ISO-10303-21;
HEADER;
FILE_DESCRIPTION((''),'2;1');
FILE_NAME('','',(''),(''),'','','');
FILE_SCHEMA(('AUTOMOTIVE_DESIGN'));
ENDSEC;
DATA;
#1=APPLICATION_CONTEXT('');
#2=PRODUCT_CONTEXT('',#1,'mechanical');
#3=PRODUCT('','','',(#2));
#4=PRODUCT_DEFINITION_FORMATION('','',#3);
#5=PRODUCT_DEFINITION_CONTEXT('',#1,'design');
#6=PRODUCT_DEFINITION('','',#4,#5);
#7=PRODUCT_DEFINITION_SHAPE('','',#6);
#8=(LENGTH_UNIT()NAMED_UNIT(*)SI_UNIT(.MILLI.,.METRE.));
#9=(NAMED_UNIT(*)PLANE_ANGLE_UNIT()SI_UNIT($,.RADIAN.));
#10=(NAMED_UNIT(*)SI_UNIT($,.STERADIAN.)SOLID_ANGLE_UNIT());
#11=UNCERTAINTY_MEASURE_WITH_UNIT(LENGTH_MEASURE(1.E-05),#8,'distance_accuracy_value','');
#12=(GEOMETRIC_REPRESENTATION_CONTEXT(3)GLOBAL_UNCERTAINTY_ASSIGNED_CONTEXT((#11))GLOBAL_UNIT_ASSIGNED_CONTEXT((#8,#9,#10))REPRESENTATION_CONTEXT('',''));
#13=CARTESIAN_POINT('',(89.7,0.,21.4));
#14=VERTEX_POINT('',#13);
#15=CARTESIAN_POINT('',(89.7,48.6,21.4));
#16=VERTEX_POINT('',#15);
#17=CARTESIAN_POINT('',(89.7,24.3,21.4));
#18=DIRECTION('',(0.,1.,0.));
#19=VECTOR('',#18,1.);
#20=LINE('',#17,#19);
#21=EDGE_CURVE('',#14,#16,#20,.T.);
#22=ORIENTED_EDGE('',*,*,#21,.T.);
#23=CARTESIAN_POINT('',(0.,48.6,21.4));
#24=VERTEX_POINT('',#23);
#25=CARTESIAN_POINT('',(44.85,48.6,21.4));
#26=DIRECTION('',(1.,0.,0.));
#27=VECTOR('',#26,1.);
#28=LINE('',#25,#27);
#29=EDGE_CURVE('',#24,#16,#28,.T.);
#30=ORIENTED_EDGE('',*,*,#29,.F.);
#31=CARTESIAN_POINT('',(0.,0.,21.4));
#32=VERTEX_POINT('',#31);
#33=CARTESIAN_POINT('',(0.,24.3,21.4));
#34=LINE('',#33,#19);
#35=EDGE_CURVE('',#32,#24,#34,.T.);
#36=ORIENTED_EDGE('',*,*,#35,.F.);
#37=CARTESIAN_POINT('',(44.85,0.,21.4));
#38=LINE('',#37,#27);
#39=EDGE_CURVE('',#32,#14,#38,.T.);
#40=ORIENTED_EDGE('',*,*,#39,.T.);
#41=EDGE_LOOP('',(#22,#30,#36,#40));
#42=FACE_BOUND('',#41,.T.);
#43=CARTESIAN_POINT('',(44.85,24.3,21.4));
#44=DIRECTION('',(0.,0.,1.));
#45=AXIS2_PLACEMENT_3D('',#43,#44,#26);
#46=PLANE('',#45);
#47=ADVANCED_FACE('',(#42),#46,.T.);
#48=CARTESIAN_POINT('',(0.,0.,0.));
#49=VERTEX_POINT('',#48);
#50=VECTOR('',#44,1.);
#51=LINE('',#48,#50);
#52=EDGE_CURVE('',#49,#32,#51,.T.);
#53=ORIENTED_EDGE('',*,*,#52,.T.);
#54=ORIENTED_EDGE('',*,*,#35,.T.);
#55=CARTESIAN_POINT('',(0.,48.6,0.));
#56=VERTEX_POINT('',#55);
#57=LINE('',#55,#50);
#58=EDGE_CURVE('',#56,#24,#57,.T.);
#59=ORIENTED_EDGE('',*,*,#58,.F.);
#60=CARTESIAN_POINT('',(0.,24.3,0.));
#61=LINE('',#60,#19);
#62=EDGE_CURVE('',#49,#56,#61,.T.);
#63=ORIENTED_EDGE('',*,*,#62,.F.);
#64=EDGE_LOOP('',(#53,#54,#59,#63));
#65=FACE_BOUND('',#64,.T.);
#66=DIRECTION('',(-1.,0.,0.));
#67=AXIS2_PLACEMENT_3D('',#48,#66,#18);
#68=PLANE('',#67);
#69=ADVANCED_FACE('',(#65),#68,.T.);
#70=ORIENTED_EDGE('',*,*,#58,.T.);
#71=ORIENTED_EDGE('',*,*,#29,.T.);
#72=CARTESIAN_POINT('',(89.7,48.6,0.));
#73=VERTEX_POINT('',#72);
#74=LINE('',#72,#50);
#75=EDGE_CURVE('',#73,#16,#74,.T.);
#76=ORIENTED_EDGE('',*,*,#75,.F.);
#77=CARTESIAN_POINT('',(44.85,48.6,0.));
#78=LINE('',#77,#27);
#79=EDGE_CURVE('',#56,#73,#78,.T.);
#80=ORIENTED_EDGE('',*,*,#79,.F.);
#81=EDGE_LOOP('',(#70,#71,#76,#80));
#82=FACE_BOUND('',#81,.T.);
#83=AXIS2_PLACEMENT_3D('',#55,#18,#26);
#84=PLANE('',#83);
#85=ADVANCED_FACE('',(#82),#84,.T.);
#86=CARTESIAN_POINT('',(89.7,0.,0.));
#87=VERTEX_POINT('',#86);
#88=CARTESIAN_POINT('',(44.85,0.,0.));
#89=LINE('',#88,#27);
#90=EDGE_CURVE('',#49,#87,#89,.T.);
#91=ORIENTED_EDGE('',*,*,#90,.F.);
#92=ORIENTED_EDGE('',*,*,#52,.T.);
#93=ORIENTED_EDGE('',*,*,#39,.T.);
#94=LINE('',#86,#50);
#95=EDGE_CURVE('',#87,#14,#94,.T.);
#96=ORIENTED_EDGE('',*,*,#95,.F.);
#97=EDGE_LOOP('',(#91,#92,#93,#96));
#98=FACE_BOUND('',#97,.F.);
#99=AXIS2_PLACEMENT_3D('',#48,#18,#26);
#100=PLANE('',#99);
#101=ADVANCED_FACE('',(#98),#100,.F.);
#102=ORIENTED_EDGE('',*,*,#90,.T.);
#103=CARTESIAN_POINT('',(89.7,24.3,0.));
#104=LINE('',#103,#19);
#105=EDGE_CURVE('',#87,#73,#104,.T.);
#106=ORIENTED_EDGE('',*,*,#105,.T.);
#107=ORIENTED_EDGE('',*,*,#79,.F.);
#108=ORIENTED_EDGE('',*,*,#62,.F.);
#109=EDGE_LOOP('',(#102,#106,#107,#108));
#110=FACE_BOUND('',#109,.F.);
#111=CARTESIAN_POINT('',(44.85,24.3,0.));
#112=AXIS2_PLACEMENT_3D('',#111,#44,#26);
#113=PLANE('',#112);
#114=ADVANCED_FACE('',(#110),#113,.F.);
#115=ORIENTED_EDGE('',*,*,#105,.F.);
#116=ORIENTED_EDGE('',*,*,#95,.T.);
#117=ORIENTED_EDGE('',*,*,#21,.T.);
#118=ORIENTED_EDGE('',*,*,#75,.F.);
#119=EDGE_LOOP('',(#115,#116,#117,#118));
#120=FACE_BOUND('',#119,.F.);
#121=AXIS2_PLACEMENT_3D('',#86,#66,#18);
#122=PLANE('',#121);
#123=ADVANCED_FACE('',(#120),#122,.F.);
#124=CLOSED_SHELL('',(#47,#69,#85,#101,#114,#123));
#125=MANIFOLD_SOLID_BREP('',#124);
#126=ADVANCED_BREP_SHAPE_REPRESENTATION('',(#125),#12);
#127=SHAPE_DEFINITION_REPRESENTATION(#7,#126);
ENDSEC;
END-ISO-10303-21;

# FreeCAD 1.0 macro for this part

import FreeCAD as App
import Part
import Sketcher


def add_polygon(sketch, points):
    """Adds a closed chain of lines whose ends are joined by coincident constraints."""
    first, n = sketch.GeometryCount, len(points)
    for a, b in zip(points, points[1:] + points[:1]):
        sketch.addGeometry(Part.LineSegment(App.Vector(*a, 0), App.Vector(*b, 0)), False)
    for i in range(n):
        sketch.addConstraint(Sketcher.Constraint("Coincident", first + i, 2, first + (i + 1) % n, 1))

doc = App.newDocument("Part")
body = doc.addObject("PartDesign::Body", "Body")

# Sketch on XY plane
sketch1 = body.newObject("Sketcher::SketchObject", "Sketch")
sketch1.AttachmentSupport = (doc.getObject("XY_Plane"), [""])
sketch1.MapMode = "FlatFace"
add_polygon(sketch1, [(0, 49), (0, 0), (90, 0), (90, 49)])  # lines 0-3
sketch1.addConstraint([
    Sketcher.Constraint("Vertical", 0),
    Sketcher.Constraint("Horizontal", 1),
    Sketcher.Constraint("Vertical", 2),
    Sketcher.Constraint("Horizontal", 3),
    Sketcher.Constraint("Coincident", 0, 2, -1, 1),
    Sketcher.Constraint("DistanceX", 1, 1, 1, 2, 89.7),
    Sketcher.Constraint("DistanceY", 0, 2, 0, 1, 48.6),
])
pad1 = body.newObject("PartDesign::Pad", "Pad")
pad1.Profile = sketch1
pad1.Length = 21.4

doc.recompute()
